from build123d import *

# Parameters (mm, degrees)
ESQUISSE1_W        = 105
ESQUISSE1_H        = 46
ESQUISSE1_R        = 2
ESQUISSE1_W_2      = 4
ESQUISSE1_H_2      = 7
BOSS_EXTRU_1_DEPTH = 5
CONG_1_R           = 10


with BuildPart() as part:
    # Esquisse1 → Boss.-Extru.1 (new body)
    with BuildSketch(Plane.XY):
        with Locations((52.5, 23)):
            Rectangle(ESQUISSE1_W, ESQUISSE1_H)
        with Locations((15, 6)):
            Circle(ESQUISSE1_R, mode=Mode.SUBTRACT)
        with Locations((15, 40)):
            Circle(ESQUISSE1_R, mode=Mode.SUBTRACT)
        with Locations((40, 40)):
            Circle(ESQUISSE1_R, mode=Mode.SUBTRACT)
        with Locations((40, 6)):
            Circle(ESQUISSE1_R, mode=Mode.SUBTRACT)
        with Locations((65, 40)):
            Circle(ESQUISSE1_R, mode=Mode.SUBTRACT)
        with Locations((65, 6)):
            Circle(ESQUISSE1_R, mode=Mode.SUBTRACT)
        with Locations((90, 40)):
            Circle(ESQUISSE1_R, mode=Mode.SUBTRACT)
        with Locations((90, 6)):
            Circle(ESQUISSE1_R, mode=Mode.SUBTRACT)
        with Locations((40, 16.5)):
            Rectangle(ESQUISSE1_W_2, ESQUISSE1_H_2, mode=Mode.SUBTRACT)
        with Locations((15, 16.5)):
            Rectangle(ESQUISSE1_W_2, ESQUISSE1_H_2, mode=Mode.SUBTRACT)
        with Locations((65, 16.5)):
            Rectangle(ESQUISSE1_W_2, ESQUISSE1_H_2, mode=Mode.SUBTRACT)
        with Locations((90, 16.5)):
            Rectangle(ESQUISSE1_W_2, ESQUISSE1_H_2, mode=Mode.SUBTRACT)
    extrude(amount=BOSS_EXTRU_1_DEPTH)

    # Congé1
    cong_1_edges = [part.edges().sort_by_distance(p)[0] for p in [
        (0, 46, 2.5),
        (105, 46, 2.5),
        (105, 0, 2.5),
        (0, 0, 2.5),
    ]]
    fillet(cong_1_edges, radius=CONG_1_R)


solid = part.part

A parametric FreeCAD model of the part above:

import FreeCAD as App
import Part
import Sketcher

V = App.Vector


def edges_at(feature, points):
    """Names of the edges that pass closest to the given points."""
    edges = feature.Shape.Edges
    near = lambda p: min(range(len(edges)), key=lambda i: edges[i].distToShape(Part.Vertex(*p))[0])
    return sorted({f"Edge{near(p) + 1}" for p in points})


def add_polygon(sketch, points):
    """Adds a closed chain of lines whose ends are joined by coincident constraints."""
    first, n = sketch.GeometryCount, len(points)
    for a, b in zip(points, points[1:] + points[:1]):
        sketch.addGeometry(Part.LineSegment(App.Vector(*a, 0), App.Vector(*b, 0)), False)
    for i in range(n):
        sketch.addConstraint(Sketcher.Constraint("Coincident", first + i, 2, first + (i + 1) % n, 1))

doc = App.newDocument("Part")
body = doc.addObject("PartDesign::Body", "Body")

# Sketch on XY plane
sketch1 = body.newObject("Sketcher::SketchObject", "Sketch")
sketch1.AttachmentSupport = (doc.getObject("XY_Plane"), [""])
sketch1.MapMode = "FlatFace"
add_polygon(sketch1, [(0, 46), (0, 0), (105, 0), (105, 46)])  # lines 0-3
sketch1.addGeometry(Part.Circle(V(15, 6, 0), V(0, 0, 1), 2), False)  # 4
sketch1.addGeometry(Part.Circle(V(40, 6, 0), V(0, 0, 1), 2), False)  # 5
add_polygon(sketch1, [(17, 13), (13, 13), (13, 20), (17, 20)])  # lines 6-9
add_polygon(sketch1, [(42, 13), (38, 13), (38, 20), (42, 20)])  # lines 10-13
sketch1.addGeometry(Part.Circle(V(65, 6, 0), V(0, 0, 1), 2), False)  # 14
sketch1.addGeometry(Part.Circle(V(90, 6, 0), V(0, 0, 1), 2), False)  # 15
add_polygon(sketch1, [(67, 13), (63, 13), (63, 20), (67, 20)])  # lines 16-19
add_polygon(sketch1, [(92, 13), (88, 13), (88, 20), (92, 20)])  # lines 20-23
sketch1.addGeometry(Part.Circle(V(15, 40, 0), V(0, 0, 1), 2), False)  # 24
sketch1.addGeometry(Part.Circle(V(40, 40, 0), V(0, 0, 1), 2), False)  # 25
sketch1.addGeometry(Part.Circle(V(65, 40, 0), V(0, 0, 1), 2), False)  # 26
sketch1.addGeometry(Part.Circle(V(90, 40, 0), V(0, 0, 1), 2), False)  # 27
sketch1.addConstraint(Sketcher.Constraint("Vertical", 0))
sketch1.addConstraint(Sketcher.Constraint("Horizontal", 1))
sketch1.addConstraint(Sketcher.Constraint("Vertical", 2))
sketch1.addConstraint(Sketcher.Constraint("Horizontal", 3))
sketch1.addConstraint(Sketcher.Constraint("Horizontal", 6))
sketch1.addConstraint(Sketcher.Constraint("Vertical", 7))
sketch1.addConstraint(Sketcher.Constraint("Horizontal", 8))
sketch1.addConstraint(Sketcher.Constraint("Vertical", 9))
sketch1.addConstraint(Sketcher.Constraint("Horizontal", 10))
sketch1.addConstraint(Sketcher.Constraint("Vertical", 11))
sketch1.addConstraint(Sketcher.Constraint("Horizontal", 12))
sketch1.addConstraint(Sketcher.Constraint("Vertical", 13))
sketch1.addConstraint(Sketcher.Constraint("Horizontal", 16))
sketch1.addConstraint(Sketcher.Constraint("Vertical", 17))
sketch1.addConstraint(Sketcher.Constraint("Horizontal", 18))
sketch1.addConstraint(Sketcher.Constraint("Vertical", 19))
sketch1.addConstraint(Sketcher.Constraint("Horizontal", 20))
sketch1.addConstraint(Sketcher.Constraint("Vertical", 21))
sketch1.addConstraint(Sketcher.Constraint("Horizontal", 22))
sketch1.addConstraint(Sketcher.Constraint("Vertical", 23))
sketch1.addConstraint(Sketcher.Constraint("Coincident", 0, 2, -1, 1))
sketch1.addConstraint(Sketcher.Constraint("Equal", 4, 5))
sketch1.addConstraint(Sketcher.Constraint("Equal", 5, 14))
sketch1.addConstraint(Sketcher.Constraint("Equal", 14, 15))
sketch1.addConstraint(Sketcher.Constraint("Equal", 15, 24))
sketch1.addConstraint(Sketcher.Constraint("Equal", 24, 25))
sketch1.addConstraint(Sketcher.Constraint("Equal", 25, 26))
sketch1.addConstraint(Sketcher.Constraint("Equal", 26, 27))
sketch1.addConstraint(Sketcher.Constraint("Horizontal", 4, 3, 5, 3))
sketch1.addConstraint(Sketcher.Constraint("Horizontal", 5, 3, 14, 3))
sketch1.addConstraint(Sketcher.Constraint("Horizontal", 14, 3, 15, 3))
sketch1.addConstraint(Sketcher.Constraint("Horizontal", 24, 3, 25, 3))
sketch1.addConstraint(Sketcher.Constraint("Horizontal", 25, 3, 26, 3))
sketch1.addConstraint(Sketcher.Constraint("Horizontal", 26, 3, 27, 3))
sketch1.addConstraint(Sketcher.Constraint("Horizontal", 9, 2, 10, 2))
sketch1.addConstraint(Sketcher.Constraint("Horizontal", 8, 2, 11, 2))
sketch1.addConstraint(Sketcher.Constraint("Horizontal", 13, 2, 16, 2))
sketch1.addConstraint(Sketcher.Constraint("Horizontal", 12, 2, 17, 2))
sketch1.addConstraint(Sketcher.Constraint("Horizontal", 19, 2, 20, 2))
sketch1.addConstraint(Sketcher.Constraint("Horizontal", 18, 2, 21, 2))
sketch1.addConstraint(Sketcher.Constraint("Vertical", 4, 3, 24, 3))
sketch1.addConstraint(Sketcher.Constraint("Vertical", 5, 3, 25, 3))
sketch1.addConstraint(Sketcher.Constraint("Vertical", 14, 3, 26, 3))
sketch1.addConstraint(Sketcher.Constraint("Vertical", 15, 3, 27, 3))
sketch1.addConstraint(Sketcher.Constraint("Equal", 8, 10))
sketch1.addConstraint(Sketcher.Constraint("Equal", 12, 16))
sketch1.addConstraint(Sketcher.Constraint("Equal", 18, 20))
sketch1.addConstraint(Sketcher.Constraint("Diameter", 4, 4.0))
sketch1.addConstraint(Sketcher.Constraint("DistanceX", 1, 1, 1, 2, 105.0))
sketch1.addConstraint(Sketcher.Constraint("DistanceX", 6, 2, 6, 1, 4.0))
sketch1.addConstraint(Sketcher.Constraint("DistanceY", 0, 2, 0, 1, 46.0))
sketch1.addConstraint(Sketcher.Constraint("DistanceY", 7, 1, 7, 2, 7.0))
sketch1.addConstraint(Sketcher.Constraint("DistanceX", -1, 1, 4, 3, 15.0))
sketch1.addConstraint(Sketcher.Constraint("DistanceY", -1, 1, 4, 3, 6.0))
sketch1.addConstraint(Sketcher.Constraint("DistanceX", -1, 1, 5, 3, 40.0))
sketch1.addConstraint(Sketcher.Constraint("DistanceX", -1, 1, 14, 3, 65.0))
sketch1.addConstraint(Sketcher.Constraint("DistanceX", -1, 1, 15, 3, 90.0))
sketch1.addConstraint(Sketcher.Constraint("DistanceY", -1, 1, 24, 3, 40.0))
sketch1.addConstraint(Sketcher.Constraint("DistanceX", -1, 1, 6, 2, 13.0))
sketch1.addConstraint(Sketcher.Constraint("DistanceY", -1, 1, 6, 2, 13.0))
sketch1.addConstraint(Sketcher.Constraint("DistanceX", -1, 1, 10, 2, 38.0))
sketch1.addConstraint(Sketcher.Constraint("DistanceX", -1, 1, 16, 2, 63.0))
sketch1.addConstraint(Sketcher.Constraint("DistanceX", -1, 1, 20, 2, 88.0))
pad1 = body.newObject("PartDesign::Pad", "Pad")
pad1.Profile = sketch1
pad1.Length = 5
doc.recompute()

fillet = body.newObject("PartDesign::Fillet", "Fillet")
fillet.Base = (pad1, edges_at(pad1, [
    (0, 46, 2.5),
    (105, 46, 2.5),
    (105, 0, 2.5),
    (0, 0, 2.5),
]))
fillet.Radius = 10

doc.recompute()
